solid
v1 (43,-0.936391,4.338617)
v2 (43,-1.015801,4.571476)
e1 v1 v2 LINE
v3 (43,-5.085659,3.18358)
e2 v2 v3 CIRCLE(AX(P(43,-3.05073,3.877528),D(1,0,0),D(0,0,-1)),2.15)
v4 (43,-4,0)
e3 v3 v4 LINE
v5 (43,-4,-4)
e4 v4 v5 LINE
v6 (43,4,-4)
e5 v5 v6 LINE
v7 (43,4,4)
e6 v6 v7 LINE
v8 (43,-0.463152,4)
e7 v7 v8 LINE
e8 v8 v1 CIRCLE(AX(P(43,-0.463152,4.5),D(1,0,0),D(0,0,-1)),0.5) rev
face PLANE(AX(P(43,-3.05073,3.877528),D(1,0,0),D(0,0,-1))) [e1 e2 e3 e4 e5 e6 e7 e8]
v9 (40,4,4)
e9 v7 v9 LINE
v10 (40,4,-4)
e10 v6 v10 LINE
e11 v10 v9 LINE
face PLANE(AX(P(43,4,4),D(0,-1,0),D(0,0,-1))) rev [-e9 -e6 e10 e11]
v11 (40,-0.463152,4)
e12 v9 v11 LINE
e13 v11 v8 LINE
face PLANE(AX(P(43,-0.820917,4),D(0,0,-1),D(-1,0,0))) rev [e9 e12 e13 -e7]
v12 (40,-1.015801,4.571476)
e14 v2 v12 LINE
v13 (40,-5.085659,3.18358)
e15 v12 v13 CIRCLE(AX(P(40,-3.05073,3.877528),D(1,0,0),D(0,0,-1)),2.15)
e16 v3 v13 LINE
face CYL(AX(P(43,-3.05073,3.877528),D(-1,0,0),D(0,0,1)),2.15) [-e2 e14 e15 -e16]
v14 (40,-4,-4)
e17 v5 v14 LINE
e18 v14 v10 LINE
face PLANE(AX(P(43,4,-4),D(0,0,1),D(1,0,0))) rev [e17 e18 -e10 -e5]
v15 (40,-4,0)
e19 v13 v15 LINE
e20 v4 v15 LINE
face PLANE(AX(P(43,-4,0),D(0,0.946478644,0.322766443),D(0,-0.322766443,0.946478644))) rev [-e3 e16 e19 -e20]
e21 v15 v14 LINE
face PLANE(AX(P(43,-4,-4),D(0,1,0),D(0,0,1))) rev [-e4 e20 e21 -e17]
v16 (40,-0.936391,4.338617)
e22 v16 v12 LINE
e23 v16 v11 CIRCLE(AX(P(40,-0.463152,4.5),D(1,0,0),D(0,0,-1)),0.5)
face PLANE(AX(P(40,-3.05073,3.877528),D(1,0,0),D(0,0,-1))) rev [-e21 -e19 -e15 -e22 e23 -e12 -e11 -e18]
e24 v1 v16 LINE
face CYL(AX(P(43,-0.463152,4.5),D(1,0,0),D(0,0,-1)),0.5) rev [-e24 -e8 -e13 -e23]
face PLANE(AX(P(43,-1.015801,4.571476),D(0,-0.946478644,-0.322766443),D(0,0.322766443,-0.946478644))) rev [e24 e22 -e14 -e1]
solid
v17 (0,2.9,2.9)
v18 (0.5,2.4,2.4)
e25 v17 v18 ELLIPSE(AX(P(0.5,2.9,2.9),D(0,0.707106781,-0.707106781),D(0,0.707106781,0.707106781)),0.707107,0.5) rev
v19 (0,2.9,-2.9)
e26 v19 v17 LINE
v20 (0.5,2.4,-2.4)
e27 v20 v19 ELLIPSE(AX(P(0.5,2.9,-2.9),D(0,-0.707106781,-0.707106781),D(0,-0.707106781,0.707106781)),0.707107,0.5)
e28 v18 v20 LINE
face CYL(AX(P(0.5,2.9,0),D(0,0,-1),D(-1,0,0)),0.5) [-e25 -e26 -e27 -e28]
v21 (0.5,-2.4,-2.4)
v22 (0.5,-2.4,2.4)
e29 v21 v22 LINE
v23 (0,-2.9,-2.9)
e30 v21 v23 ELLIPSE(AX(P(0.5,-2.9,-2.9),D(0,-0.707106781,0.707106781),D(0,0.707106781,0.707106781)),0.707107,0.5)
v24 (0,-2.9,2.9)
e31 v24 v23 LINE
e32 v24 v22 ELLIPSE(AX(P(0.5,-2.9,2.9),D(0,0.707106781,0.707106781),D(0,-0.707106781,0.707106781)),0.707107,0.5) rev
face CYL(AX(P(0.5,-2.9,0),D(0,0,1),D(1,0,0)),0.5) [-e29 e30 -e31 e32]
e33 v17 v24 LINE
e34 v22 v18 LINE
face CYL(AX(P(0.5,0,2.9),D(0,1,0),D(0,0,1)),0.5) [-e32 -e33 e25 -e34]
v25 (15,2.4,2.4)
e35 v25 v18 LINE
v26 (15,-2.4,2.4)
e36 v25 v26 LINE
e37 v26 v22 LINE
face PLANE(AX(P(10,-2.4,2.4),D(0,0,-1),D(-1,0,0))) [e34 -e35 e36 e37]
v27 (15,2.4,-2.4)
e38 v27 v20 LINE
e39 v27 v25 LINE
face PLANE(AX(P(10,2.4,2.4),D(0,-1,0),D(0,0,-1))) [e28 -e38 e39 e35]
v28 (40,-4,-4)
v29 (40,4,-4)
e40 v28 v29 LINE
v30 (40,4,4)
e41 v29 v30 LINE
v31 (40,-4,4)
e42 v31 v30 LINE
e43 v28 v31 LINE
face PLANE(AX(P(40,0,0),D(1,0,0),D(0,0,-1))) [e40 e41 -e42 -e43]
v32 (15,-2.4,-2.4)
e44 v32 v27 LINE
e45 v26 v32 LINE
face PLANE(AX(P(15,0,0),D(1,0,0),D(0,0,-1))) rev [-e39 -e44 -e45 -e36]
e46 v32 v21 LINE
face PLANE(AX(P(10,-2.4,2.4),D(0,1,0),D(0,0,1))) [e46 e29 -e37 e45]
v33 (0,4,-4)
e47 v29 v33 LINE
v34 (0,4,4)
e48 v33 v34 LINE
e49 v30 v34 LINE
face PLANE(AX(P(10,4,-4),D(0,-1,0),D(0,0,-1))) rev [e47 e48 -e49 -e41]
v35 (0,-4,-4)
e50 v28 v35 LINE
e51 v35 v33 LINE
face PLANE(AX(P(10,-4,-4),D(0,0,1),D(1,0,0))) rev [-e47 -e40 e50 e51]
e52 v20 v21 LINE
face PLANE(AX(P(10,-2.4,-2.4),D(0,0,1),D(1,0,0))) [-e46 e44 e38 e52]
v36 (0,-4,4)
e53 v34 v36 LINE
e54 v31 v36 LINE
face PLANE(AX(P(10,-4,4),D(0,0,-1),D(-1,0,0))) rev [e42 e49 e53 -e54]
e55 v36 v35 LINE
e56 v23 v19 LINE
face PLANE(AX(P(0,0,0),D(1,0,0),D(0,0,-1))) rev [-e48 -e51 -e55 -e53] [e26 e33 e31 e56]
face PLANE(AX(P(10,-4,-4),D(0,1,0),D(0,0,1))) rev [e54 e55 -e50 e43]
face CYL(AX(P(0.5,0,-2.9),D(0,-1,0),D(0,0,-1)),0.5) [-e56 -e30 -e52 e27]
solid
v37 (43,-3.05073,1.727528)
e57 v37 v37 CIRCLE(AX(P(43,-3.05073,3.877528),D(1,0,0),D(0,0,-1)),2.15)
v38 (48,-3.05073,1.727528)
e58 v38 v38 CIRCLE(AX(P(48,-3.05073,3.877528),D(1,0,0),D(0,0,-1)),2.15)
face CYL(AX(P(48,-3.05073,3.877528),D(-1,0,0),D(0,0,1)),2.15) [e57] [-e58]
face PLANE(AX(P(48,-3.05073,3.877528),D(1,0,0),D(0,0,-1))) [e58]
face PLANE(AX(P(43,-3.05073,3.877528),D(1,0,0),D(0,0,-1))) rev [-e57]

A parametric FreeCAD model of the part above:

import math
import FreeCAD as App
import Part
import Sketcher
from FreeCAD import Vector
Q = App.Units.Quantity


def edges_at(feature, points):
    """Names of the edges that pass closest to the given points."""
    edges = feature.Shape.Edges
    near = lambda p: min(range(len(edges)), key=lambda i: edges[i].distToShape(Part.Vertex(*p))[0])
    return sorted({f"Edge{near(p) + 1}" for p in points})


def add_polygon(sketch, points):
    """Adds a closed chain of lines whose ends are joined by coincident constraints."""
    first, n = sketch.GeometryCount, len(points)
    for a, b in zip(points, points[1:] + points[:1]):
        sketch.addGeometry(Part.LineSegment(App.Vector(*a, 0), App.Vector(*b, 0)), False)
    for i in range(n):
        sketch.addConstraint(Sketcher.Constraint("Coincident", first + i, 2, first + (i + 1) % n, 1))

doc = App.newDocument("Part")
body = doc.addObject("PartDesign::Body", "Body")

sketch1 = body.newObject("Sketcher::SketchObject", "Sketch")
sketch1.AttachmentSupport = (doc.getObject("YZ_Plane"), [""])
sketch1.MapMode = "FlatFace"
add_polygon(sketch1, [(4, 4), (-4, 4), (-4, -4), (4, -4)])
add_polygon(sketch1, [(-2.4, -2.4), (-2.4, 2.4), (2.4, 2.4), (2.4, -2.4)])
sketch1.addConstraint([
    Sketcher.Constraint("Horizontal", 0),
    Sketcher.Constraint("Vertical", 1),
    Sketcher.Constraint("Horizontal", 2),
    Sketcher.Constraint("Vertical", 3),
    Sketcher.Constraint("Vertical", 4),
    Sketcher.Constraint("Horizontal", 5),
    Sketcher.Constraint("Vertical", 6),
    Sketcher.Constraint("Horizontal", 7),
    Sketcher.Constraint("Symmetric", 0, 2, 2, 2, -1, 1),
    Sketcher.Constraint("Symmetric", 4, 2, 6, 2, -1, 1),
    Sketcher.Constraint("Equal", 2, 1),
    Sketcher.Constraint("Equal", 7, 4),
    Sketcher.Constraint("DistanceX", 0, 2, 0, 1, Q("8 mm")),
    Sketcher.Constraint("DistanceX", 5, 1, 5, 2, Q("4.8 mm")),
])
pad1 = body.newObject("PartDesign::Pad", "Pad")
pad1.Profile = sketch1
pad1.Length = 10
body2 = doc.addObject("PartDesign::Body", "Body001")

sketch2 = body2.newObject("Sketcher::SketchObject", "Sketch001")
sketch2.AttachmentSupport = (doc.getObject("YZ_Plane001"), [""])
sketch2.MapMode = "FlatFace"
sketch2.AttachmentOffset = App.Placement(Vector(0, 0, 15), App.Rotation())
add_polygon(sketch2, [(4, 4), (-4, 4), (-4, -4), (4, -4)])
sketch2.addConstraint([
    Sketcher.Constraint("Horizontal", 0),
    Sketcher.Constraint("Vertical", 1),
    Sketcher.Constraint("Horizontal", 2),
    Sketcher.Constraint("Vertical", 3),
    Sketcher.Constraint("Symmetric", 0, 2, 2, 2, -1, 1),
    Sketcher.Constraint("Equal", 2, 1),
    Sketcher.Constraint("DistanceX", 0, 2, 0, 1, Q("8 mm")),
])
pad2 = body2.newObject("PartDesign::Pad", "Pad001")
pad2.Profile = sketch2
pad2.Length = 25
body3 = doc.addObject("PartDesign::Body", "Body002")

sketch3 = body3.newObject("Sketcher::SketchObject", "Sketch002")
sketch3.AttachmentSupport = (doc.getObject("YZ_Plane002"), [""])
sketch3.MapMode = "FlatFace"
sketch3.AttachmentOffset = App.Placement(Vector(0, 0, 40), App.Rotation())
sketch3.addGeometry([
    Part.LineSegment(Vector(4, -4, 0), Vector(4, 4, 0)),
    Part.LineSegment(Vector(4, 4, 0), Vector(-0.820917, 4, 0)),
    Part.LineSegment(Vector(-0.820917, 4, 0), Vector(-1.015801, 4.571476, 0)),
    Part.ArcOfCircle(Part.Circle(Vector(-3.05073, 3.877528, 0), Vector(0, 0, 1), 2.15), math.radians(18.83031), math.radians(198.83031)),
    Part.LineSegment(Vector(-5.085659, 3.18358, 0), Vector(-4, 0, 0)),
    Part.LineSegment(Vector(-4, 0, 0), Vector(-4, -4, 0)),
    Part.LineSegment(Vector(-4, -4, 0), Vector(4, -4, 0)),
], False)
sketch3.addConstraint([
    Sketcher.Constraint("Coincident", 0, 2, 1, 1),
    Sketcher.Constraint("Coincident", 1, 2, 2, 1),
    Sketcher.Constraint("Tangent", 2, 2, 3, 1),
    Sketcher.Constraint("Tangent", 3, 2, 4, 1),
    Sketcher.Constraint("Coincident", 4, 2, 5, 1),
    Sketcher.Constraint("Coincident", 5, 2, 6, 1),
    Sketcher.Constraint("Coincident", 6, 2, 0, 1),
    Sketcher.Constraint("Vertical", 0),
    Sketcher.Constraint("Horizontal", 1),
    Sketcher.Constraint("Vertical", 5),
    Sketcher.Constraint("Horizontal", 6),
    Sketcher.Constraint("Symmetric", 0, 2, 5, 2, -1, 1),
    Sketcher.Constraint("PointOnObject", 4, 2, -1),
    Sketcher.Constraint("Parallel", 2, 4),
    Sketcher.Constraint("Equal", 6, 0),
    Sketcher.Constraint("DistanceX", 6, 1, 6, 2, Q("8 mm")),
    Sketcher.Constraint("Radius", 3, Q("2.15 mm")),
    Sketcher.Constraint("DistanceX", 2, 2, -1, 1, Q("1.015801 mm")),
    Sketcher.Constraint("Distance", 2, Q("0.603792 mm")),
])
pad3 = body3.newObject("PartDesign::Pad", "Pad002")
pad3.Profile = sketch3
pad3.Length = 3
doc.recompute()

fillet = body3.newObject("PartDesign::Fillet", "Fillet")
fillet.Base = (pad3, edges_at(pad3, [(41.5, -0.821, 4)]))
fillet.Radius = 0.5
body4 = doc.addObject("PartDesign::Body", "Body003")

sketch4 = body4.newObject("Sketcher::SketchObject", "Sketch003")
sketch4.AttachmentSupport = (doc.getObject("YZ_Plane003"), [""])
sketch4.MapMode = "FlatFace"
sketch4.AttachmentOffset = App.Placement(Vector(0, 0, 43), App.Rotation())
sketch4.addGeometry(Part.Circle(Vector(-3.05073, 3.877528, 0), Vector(0, 0, 1), 2.15), False)
sketch4.addConstraint([
    Sketcher.Constraint("Diameter", 0, Q("4.3 mm")),
    Sketcher.Constraint("DistanceX", 0, 3, -1, 1, Q("3.05073 mm")),
    Sketcher.Constraint("DistanceY", -1, 1, 0, 3, Q("3.877528 mm")),
])
pad4 = body4.newObject("PartDesign::Pad", "Pad003")
pad4.Profile = sketch4
pad4.Length = 5
body.AllowCompound = True
doc.recompute()

boolean = body.newObject("PartDesign::Boolean", "Boolean")
boolean.Type = "Fuse"
boolean.addObjects([body2])

sketch5 = body.newObject("Sketcher::SketchObject", "Sketch004")
sketch5.AttachmentSupport = (doc.getObject("YZ_Plane"), [""])
sketch5.MapMode = "FlatFace"
sketch5.AttachmentOffset = App.Placement(Vector(0, 0, 10), App.Rotation())
add_polygon(sketch5, [(4, 4), (-4, 4), (-4, -4), (4, -4)])
add_polygon(sketch5, [(-2.4, -2.4), (-2.4, 2.4), (2.4, 2.4), (2.4, -2.4)])
sketch5.addConstraint([
    Sketcher.Constraint("Horizontal", 0),
    Sketcher.Constraint("Vertical", 1),
    Sketcher.Constraint("Horizontal", 2),
    Sketcher.Constraint("Vertical", 3),
    Sketcher.Constraint("Vertical", 4),
    Sketcher.Constraint("Horizontal", 5),
    Sketcher.Constraint("Vertical", 6),
    Sketcher.Constraint("Horizontal", 7),
    Sketcher.Constraint("Symmetric", 0, 2, 2, 2, -1, 1),
    Sketcher.Constraint("Symmetric", 4, 2, 6, 2, -1, 1),
    Sketcher.Constraint("Equal", 2, 1),
    Sketcher.Constraint("Equal", 7, 4),
    Sketcher.Constraint("DistanceX", 0, 2, 0, 1, Q("8 mm")),
    Sketcher.Constraint("DistanceX", 5, 1, 5, 2, Q("4.8 mm")),
])
pad5 = body.newObject("PartDesign::Pad", "Pad004")
pad5.Profile = sketch5
pad5.Length = 5
doc.recompute()

fillet2 = body.newObject("PartDesign::Fillet", "Fillet001")
fillet2.Base = (pad5, edges_at(pad5, [
    (0, 0, -2.4),
    (0, 2.4, 0),
    (0, 0, 2.4),
    (0, -2.4, 0),
]))
fillet2.Radius = 0.5

doc.recompute()
